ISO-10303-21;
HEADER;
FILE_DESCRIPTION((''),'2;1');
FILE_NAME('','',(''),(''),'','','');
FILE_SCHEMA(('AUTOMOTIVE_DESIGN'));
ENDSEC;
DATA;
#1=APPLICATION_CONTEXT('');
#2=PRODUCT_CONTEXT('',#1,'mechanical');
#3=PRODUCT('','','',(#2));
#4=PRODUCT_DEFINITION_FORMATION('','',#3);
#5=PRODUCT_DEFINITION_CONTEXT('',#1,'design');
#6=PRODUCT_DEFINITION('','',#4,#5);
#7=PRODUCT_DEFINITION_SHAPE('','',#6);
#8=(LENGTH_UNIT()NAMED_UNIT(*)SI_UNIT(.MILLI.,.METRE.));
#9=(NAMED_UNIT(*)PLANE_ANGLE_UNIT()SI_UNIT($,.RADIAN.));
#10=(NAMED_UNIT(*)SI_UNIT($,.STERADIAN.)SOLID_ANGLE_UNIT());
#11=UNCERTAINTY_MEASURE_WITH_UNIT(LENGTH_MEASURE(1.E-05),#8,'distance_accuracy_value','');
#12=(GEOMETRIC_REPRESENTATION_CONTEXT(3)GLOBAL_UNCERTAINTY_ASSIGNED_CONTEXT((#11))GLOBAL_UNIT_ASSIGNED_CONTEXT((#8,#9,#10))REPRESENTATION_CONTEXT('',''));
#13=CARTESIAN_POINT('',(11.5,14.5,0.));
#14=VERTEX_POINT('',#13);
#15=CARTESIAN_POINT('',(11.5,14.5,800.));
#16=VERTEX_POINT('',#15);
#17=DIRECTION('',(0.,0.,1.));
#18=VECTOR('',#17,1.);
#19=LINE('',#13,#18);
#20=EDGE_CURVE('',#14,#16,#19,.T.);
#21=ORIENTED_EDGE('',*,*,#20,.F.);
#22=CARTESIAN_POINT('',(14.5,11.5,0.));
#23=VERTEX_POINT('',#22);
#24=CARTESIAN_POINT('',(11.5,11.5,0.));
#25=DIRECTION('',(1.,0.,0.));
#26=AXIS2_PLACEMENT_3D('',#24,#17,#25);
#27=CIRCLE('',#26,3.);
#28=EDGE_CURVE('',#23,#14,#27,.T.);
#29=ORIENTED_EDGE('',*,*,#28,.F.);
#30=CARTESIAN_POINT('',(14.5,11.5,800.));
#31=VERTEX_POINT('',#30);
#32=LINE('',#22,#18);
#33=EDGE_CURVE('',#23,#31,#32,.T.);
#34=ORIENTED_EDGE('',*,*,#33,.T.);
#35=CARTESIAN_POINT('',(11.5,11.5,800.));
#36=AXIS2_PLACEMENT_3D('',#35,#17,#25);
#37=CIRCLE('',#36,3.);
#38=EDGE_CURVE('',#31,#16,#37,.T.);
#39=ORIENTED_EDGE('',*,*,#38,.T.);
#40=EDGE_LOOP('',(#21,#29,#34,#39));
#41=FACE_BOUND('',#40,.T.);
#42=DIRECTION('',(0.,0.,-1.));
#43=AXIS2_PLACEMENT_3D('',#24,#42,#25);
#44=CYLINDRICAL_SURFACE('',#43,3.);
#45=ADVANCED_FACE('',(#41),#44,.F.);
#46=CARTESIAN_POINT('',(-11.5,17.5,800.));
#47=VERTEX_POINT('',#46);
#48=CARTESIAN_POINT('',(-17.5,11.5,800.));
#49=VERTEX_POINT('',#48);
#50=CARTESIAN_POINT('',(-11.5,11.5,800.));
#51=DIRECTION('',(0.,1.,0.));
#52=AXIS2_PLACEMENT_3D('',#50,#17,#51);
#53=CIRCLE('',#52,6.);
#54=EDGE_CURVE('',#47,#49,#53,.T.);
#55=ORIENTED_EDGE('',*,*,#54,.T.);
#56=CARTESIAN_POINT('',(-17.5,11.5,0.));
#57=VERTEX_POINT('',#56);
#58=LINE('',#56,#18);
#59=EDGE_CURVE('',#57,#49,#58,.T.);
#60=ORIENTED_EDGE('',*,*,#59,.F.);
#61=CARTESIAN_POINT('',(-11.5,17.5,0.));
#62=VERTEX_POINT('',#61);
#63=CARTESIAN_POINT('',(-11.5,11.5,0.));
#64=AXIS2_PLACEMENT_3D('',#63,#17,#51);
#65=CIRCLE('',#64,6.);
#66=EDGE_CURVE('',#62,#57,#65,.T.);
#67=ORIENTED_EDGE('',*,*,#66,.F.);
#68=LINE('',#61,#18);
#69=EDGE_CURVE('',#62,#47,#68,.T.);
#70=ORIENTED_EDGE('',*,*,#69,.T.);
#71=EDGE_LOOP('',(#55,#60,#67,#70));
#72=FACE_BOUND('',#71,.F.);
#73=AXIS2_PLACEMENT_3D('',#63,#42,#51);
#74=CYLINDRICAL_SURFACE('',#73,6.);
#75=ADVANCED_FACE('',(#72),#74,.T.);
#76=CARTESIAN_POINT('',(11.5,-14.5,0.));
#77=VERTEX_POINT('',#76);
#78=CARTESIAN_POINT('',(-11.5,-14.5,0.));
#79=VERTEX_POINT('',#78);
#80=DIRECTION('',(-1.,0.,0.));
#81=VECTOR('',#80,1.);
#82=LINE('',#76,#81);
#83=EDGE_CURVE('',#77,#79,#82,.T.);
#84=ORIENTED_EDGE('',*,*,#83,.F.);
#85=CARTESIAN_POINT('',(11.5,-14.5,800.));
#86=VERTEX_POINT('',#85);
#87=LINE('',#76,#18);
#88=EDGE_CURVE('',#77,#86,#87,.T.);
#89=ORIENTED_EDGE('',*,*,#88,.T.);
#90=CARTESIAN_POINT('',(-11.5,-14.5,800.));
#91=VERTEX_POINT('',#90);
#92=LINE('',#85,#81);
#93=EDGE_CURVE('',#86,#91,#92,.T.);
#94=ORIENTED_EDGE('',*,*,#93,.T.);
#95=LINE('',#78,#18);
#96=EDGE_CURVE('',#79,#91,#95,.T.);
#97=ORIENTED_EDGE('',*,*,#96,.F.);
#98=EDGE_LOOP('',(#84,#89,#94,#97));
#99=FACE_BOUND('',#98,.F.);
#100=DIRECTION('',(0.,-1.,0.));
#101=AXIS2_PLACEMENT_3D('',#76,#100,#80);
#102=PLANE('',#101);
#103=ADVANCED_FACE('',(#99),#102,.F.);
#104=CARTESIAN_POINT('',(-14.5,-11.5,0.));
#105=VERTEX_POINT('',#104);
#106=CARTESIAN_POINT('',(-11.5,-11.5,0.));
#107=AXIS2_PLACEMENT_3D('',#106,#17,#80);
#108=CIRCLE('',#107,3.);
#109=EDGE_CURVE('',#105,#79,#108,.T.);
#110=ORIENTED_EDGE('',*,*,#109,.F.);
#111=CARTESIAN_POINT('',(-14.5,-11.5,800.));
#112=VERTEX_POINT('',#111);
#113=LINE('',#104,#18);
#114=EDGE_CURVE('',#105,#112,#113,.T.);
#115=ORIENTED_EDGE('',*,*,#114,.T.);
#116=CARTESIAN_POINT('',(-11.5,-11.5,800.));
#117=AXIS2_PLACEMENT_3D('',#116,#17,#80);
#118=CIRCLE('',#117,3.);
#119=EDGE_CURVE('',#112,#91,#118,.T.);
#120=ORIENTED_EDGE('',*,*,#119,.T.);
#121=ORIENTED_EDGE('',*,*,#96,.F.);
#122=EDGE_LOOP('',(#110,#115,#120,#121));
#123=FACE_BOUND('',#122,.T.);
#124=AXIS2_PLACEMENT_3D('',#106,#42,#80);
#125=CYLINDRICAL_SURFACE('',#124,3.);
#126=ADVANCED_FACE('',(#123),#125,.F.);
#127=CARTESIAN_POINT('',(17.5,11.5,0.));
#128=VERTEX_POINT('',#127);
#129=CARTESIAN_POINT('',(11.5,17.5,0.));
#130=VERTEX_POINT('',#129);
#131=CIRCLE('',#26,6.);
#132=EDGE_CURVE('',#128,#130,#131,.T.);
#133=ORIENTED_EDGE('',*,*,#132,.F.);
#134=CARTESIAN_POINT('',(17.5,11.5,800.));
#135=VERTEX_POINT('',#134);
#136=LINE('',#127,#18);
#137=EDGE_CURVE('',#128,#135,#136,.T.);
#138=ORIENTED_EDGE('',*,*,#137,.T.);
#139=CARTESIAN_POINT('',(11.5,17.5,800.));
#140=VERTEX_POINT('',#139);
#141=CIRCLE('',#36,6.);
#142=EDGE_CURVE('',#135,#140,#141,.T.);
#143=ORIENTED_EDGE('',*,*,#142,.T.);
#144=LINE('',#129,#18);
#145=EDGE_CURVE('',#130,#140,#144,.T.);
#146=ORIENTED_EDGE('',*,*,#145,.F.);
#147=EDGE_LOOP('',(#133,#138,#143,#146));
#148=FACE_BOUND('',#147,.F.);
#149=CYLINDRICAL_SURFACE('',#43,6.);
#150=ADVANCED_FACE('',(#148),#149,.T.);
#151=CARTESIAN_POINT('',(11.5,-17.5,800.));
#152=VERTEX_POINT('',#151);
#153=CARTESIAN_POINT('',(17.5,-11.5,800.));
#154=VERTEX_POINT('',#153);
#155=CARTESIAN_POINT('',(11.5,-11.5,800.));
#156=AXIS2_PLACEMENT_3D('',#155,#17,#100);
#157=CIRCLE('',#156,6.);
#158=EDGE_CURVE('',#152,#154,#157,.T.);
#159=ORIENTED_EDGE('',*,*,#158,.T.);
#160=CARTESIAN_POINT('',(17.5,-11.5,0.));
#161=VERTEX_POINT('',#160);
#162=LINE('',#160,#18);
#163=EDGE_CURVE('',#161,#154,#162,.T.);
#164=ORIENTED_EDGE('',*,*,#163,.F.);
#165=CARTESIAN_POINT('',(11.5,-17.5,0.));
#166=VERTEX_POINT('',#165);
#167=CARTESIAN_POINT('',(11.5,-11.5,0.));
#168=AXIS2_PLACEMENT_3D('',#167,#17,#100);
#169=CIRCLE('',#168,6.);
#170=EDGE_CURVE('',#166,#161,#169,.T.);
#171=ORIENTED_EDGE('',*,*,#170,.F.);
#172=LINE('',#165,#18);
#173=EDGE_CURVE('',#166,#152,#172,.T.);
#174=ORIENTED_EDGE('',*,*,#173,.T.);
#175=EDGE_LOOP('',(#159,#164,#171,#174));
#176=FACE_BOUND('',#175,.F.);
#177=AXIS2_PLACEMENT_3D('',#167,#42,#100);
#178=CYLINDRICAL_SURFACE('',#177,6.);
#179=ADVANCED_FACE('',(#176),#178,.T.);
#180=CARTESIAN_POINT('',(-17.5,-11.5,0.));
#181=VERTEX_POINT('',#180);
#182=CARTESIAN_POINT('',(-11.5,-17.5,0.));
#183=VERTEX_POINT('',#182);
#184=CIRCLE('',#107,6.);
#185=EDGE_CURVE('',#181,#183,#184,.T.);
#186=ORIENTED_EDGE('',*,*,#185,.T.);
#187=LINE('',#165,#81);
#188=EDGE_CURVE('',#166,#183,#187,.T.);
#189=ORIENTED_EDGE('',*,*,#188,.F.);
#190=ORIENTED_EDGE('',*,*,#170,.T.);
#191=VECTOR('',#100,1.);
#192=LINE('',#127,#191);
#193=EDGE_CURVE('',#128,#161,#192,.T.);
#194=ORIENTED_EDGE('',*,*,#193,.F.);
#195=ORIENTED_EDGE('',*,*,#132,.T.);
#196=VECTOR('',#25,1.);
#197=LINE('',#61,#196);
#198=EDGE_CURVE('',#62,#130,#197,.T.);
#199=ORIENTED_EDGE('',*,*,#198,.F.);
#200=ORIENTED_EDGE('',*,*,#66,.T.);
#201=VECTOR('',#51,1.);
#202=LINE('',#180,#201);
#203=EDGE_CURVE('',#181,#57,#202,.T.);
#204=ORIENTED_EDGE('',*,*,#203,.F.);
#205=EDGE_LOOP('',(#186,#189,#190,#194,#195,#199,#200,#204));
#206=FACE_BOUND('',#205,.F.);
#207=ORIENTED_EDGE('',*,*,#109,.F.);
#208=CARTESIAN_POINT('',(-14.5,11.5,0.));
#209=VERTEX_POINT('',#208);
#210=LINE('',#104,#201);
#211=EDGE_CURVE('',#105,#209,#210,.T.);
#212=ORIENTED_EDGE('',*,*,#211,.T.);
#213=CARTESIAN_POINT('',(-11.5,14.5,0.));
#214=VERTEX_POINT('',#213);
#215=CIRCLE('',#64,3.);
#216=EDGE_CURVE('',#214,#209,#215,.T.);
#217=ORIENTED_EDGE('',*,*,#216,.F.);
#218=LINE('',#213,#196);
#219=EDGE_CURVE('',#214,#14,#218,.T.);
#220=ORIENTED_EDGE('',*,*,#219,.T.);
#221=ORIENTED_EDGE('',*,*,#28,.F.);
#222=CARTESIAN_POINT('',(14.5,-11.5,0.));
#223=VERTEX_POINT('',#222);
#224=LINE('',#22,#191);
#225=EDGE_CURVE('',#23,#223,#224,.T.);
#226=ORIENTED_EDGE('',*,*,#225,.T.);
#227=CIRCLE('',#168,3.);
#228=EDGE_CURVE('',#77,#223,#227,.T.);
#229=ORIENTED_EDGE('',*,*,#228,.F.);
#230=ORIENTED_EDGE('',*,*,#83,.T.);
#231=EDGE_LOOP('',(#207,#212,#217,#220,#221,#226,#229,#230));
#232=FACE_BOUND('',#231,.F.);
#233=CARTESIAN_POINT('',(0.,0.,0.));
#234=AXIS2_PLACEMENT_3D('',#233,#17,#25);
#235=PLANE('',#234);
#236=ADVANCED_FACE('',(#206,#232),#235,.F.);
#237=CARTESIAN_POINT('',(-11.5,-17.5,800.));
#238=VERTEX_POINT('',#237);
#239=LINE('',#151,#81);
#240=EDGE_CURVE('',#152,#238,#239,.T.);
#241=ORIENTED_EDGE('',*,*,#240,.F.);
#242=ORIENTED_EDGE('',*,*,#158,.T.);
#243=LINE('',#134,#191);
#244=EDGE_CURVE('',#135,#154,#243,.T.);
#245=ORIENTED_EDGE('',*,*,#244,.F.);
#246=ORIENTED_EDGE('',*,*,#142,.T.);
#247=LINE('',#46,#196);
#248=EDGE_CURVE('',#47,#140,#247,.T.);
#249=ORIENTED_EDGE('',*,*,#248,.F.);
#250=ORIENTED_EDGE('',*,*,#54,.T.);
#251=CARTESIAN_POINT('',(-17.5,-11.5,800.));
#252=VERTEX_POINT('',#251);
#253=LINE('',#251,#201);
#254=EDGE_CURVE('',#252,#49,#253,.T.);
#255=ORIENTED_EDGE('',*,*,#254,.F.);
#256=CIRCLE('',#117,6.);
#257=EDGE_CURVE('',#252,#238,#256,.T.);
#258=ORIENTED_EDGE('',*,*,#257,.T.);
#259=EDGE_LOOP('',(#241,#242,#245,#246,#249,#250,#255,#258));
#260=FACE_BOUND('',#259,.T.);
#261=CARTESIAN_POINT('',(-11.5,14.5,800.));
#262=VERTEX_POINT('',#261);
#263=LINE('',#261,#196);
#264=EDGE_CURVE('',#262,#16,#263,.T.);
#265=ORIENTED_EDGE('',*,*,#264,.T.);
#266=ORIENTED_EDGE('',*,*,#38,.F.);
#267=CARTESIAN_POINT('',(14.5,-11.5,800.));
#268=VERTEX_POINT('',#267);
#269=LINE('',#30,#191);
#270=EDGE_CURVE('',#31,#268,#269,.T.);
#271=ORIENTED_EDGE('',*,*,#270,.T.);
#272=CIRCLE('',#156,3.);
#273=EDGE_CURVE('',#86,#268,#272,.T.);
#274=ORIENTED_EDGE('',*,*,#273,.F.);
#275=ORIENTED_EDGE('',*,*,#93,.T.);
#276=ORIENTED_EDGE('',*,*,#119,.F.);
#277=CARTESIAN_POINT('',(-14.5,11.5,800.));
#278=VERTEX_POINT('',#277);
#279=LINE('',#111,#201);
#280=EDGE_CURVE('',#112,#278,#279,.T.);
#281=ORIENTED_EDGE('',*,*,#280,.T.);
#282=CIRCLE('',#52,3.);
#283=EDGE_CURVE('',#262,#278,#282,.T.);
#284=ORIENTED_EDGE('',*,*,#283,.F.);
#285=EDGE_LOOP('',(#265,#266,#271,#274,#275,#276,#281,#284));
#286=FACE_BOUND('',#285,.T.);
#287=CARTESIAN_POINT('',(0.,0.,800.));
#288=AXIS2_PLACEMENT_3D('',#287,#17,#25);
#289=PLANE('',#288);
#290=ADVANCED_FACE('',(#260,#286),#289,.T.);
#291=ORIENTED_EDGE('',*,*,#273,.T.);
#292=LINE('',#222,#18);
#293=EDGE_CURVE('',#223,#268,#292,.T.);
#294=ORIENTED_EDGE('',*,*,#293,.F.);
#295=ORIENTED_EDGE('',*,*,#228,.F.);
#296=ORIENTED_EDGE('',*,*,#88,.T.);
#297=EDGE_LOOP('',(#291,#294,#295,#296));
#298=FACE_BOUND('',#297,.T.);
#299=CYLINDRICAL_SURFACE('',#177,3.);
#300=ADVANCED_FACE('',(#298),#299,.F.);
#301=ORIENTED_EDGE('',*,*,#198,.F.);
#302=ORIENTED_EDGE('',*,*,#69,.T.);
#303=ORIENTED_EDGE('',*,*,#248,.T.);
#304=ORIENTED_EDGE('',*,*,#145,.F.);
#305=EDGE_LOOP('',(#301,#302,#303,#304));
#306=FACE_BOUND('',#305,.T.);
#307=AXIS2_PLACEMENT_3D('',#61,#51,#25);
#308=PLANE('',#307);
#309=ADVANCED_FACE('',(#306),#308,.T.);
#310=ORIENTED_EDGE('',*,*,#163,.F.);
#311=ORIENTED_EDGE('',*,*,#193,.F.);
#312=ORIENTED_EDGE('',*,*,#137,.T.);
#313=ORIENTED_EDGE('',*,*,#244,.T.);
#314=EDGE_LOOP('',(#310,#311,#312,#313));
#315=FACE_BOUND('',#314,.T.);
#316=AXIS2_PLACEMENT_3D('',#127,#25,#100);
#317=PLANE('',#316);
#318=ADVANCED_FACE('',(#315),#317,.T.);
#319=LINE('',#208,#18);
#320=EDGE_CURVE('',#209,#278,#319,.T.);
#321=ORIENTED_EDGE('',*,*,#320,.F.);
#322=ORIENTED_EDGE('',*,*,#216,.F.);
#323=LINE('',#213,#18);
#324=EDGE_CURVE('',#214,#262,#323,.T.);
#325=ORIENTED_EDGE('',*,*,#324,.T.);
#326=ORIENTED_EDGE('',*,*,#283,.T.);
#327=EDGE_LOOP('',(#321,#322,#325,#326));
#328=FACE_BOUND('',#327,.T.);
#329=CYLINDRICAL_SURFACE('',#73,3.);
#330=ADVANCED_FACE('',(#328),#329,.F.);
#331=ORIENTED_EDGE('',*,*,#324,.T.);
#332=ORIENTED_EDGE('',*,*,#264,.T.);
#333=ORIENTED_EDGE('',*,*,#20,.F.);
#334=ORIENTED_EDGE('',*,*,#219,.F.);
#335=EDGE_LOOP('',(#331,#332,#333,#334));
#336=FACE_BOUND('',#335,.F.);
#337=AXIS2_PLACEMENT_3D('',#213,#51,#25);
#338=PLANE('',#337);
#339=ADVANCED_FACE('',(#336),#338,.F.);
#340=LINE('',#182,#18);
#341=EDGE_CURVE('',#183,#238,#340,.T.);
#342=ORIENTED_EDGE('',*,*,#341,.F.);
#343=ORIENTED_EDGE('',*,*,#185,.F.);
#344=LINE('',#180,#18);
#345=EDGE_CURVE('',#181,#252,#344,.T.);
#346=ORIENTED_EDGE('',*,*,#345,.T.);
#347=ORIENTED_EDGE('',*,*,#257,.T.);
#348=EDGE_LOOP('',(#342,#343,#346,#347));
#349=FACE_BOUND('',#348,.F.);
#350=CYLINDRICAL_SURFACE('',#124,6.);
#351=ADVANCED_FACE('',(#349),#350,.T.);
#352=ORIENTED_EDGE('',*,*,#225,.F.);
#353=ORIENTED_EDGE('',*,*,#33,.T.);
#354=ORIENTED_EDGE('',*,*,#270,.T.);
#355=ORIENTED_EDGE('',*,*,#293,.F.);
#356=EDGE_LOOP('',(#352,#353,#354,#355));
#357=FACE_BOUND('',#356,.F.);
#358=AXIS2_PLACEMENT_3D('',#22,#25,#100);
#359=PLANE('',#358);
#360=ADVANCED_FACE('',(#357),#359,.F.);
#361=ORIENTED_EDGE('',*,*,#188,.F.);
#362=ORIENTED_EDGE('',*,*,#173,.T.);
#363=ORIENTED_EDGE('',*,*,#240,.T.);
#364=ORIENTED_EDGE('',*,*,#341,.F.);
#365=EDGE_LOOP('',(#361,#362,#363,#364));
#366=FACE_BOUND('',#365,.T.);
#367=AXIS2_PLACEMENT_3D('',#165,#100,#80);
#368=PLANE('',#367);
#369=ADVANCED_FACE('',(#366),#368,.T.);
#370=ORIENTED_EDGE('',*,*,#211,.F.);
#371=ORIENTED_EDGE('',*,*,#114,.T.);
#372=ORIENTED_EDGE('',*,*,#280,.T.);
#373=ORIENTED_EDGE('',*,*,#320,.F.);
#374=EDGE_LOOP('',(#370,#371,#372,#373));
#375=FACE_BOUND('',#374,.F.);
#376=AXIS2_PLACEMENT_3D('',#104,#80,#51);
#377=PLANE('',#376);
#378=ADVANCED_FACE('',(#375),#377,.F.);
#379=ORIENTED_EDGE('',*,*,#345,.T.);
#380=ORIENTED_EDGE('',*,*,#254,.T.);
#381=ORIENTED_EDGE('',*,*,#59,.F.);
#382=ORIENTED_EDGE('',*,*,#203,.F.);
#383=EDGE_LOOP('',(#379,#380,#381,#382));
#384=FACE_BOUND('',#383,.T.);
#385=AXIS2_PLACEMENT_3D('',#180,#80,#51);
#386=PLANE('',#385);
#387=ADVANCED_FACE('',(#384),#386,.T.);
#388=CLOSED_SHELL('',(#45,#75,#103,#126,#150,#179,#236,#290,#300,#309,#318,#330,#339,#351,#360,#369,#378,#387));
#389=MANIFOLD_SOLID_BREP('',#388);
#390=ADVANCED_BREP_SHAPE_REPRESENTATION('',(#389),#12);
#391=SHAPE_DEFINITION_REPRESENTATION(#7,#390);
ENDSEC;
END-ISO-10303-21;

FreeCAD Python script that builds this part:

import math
import FreeCAD as App
import Part
import Sketcher
from FreeCAD import Vector

doc = App.newDocument("Part")
body = doc.addObject("PartDesign::Body", "Body")

sketch1 = doc.addObject("Sketcher::SketchObject", "Sketch")
body.addObject(sketch1)
sketch1.AttachmentSupport = (doc.XY_Plane, [""])
sketch1.MapMode = "FlatFace"
sketch1.addGeometry([
    Part.LineSegment(Vector(11.5, 17.5, 0), Vector(-11.5, 17.5, 0)),
    Part.ArcOfCircle(Part.Circle(Vector(-11.5, 11.5, 0), Vector(0, 0, 1), 6), math.radians(90), math.radians(180)),
    Part.LineSegment(Vector(-17.5, 11.5, 0), Vector(-17.5, -11.5, 0)),
    Part.ArcOfCircle(Part.Circle(Vector(-11.5, -11.5, 0), Vector(0, 0, 1), 6), math.radians(180), math.radians(270)),
    Part.LineSegment(Vector(-11.5, -17.5, 0), Vector(11.5, -17.5, 0)),
    Part.ArcOfCircle(Part.Circle(Vector(11.5, -11.5, 0), Vector(0, 0, 1), 6), math.radians(-90), math.radians(0)),
    Part.LineSegment(Vector(17.5, -11.5, 0), Vector(17.5, 11.5, 0)),
    Part.ArcOfCircle(Part.Circle(Vector(11.5, 11.5, 0), Vector(0, 0, 1), 6), math.radians(0), math.radians(90)),
    Part.ArcOfCircle(Part.Circle(Vector(-11.5, 11.5, 0), Vector(0, 0, 1), 3), math.radians(90), math.radians(180)),
    Part.LineSegment(Vector(-11.5, 14.5, 0), Vector(11.5, 14.5, 0)),
    Part.ArcOfCircle(Part.Circle(Vector(11.5, 11.5, 0), Vector(0, 0, 1), 3), math.radians(0), math.radians(90)),
    Part.LineSegment(Vector(14.5, 11.5, 0), Vector(14.5, -11.5, 0)),
    Part.ArcOfCircle(Part.Circle(Vector(11.5, -11.5, 0), Vector(0, 0, 1), 3), math.radians(-90), math.radians(0)),
    Part.LineSegment(Vector(11.5, -14.5, 0), Vector(-11.5, -14.5, 0)),
    Part.ArcOfCircle(Part.Circle(Vector(-11.5, -11.5, 0), Vector(0, 0, 1), 3), math.radians(180), math.radians(270)),
    Part.LineSegment(Vector(-14.5, -11.5, 0), Vector(-14.5, 11.5, 0)),
], False)
sketch1.addConstraint([
    Sketcher.Constraint("Tangent", 0, 2, 1, 1),
    Sketcher.Constraint("Tangent", 1, 2, 2, 1),
    Sketcher.Constraint("Tangent", 2, 2, 3, 1),
    Sketcher.Constraint("Tangent", 3, 2, 4, 1),
    Sketcher.Constraint("Tangent", 4, 2, 5, 1),
    Sketcher.Constraint("Tangent", 5, 2, 6, 1),
    Sketcher.Constraint("Tangent", 6, 2, 7, 1),
    Sketcher.Constraint("Tangent", 7, 2, 0, 1),
    Sketcher.Constraint("Tangent", 8, 1, 9, 1),
    Sketcher.Constraint("Tangent", 9, 2, 10, 2),
    Sketcher.Constraint("Tangent", 10, 1, 11, 1),
    Sketcher.Constraint("Tangent", 11, 2, 12, 2),
    Sketcher.Constraint("Tangent", 12, 1, 13, 1),
    Sketcher.Constraint("Tangent", 13, 2, 14, 2),
    Sketcher.Constraint("Tangent", 14, 1, 15, 1),
    Sketcher.Constraint("Tangent", 15, 2, 8, 2),
    Sketcher.Constraint("Horizontal", 0),
    Sketcher.Constraint("Vertical", 2),
    Sketcher.Constraint("Horizontal", 4),
    Sketcher.Constraint("Vertical", 6),
    Sketcher.Constraint("Horizontal", 9),
    Sketcher.Constraint("Vertical", 11),
    Sketcher.Constraint("Horizontal", 13),
    Sketcher.Constraint("Vertical", 15),
    Sketcher.Constraint("Coincident", 8, 3, 1, 3),
    Sketcher.Constraint("Coincident", 10, 3, 7, 3),
    Sketcher.Constraint("Coincident", 12, 3, 5, 3),
    Sketcher.Constraint("Equal", 1, 3),
    Sketcher.Constraint("Equal", 3, 5),
    Sketcher.Constraint("Equal", 5, 7),
    Sketcher.Constraint("Equal", 12, 14),
    Sketcher.Constraint("Symmetric", 1, 3, 5, 3, -1, 1),
    Sketcher.Constraint("Equal", 13, 2),
    Sketcher.Constraint("Radius", 1, 6.0),
    Sketcher.Constraint("Radius", 8, 3.0),
    Sketcher.Constraint("DistanceY", -1, 1, 0, 2, 17.5),
])
pad1 = doc.addObject("PartDesign::Pad", "Pad")
body.addObject(pad1)
pad1.Profile = sketch1
pad1.Length = 800

doc.recompute()
